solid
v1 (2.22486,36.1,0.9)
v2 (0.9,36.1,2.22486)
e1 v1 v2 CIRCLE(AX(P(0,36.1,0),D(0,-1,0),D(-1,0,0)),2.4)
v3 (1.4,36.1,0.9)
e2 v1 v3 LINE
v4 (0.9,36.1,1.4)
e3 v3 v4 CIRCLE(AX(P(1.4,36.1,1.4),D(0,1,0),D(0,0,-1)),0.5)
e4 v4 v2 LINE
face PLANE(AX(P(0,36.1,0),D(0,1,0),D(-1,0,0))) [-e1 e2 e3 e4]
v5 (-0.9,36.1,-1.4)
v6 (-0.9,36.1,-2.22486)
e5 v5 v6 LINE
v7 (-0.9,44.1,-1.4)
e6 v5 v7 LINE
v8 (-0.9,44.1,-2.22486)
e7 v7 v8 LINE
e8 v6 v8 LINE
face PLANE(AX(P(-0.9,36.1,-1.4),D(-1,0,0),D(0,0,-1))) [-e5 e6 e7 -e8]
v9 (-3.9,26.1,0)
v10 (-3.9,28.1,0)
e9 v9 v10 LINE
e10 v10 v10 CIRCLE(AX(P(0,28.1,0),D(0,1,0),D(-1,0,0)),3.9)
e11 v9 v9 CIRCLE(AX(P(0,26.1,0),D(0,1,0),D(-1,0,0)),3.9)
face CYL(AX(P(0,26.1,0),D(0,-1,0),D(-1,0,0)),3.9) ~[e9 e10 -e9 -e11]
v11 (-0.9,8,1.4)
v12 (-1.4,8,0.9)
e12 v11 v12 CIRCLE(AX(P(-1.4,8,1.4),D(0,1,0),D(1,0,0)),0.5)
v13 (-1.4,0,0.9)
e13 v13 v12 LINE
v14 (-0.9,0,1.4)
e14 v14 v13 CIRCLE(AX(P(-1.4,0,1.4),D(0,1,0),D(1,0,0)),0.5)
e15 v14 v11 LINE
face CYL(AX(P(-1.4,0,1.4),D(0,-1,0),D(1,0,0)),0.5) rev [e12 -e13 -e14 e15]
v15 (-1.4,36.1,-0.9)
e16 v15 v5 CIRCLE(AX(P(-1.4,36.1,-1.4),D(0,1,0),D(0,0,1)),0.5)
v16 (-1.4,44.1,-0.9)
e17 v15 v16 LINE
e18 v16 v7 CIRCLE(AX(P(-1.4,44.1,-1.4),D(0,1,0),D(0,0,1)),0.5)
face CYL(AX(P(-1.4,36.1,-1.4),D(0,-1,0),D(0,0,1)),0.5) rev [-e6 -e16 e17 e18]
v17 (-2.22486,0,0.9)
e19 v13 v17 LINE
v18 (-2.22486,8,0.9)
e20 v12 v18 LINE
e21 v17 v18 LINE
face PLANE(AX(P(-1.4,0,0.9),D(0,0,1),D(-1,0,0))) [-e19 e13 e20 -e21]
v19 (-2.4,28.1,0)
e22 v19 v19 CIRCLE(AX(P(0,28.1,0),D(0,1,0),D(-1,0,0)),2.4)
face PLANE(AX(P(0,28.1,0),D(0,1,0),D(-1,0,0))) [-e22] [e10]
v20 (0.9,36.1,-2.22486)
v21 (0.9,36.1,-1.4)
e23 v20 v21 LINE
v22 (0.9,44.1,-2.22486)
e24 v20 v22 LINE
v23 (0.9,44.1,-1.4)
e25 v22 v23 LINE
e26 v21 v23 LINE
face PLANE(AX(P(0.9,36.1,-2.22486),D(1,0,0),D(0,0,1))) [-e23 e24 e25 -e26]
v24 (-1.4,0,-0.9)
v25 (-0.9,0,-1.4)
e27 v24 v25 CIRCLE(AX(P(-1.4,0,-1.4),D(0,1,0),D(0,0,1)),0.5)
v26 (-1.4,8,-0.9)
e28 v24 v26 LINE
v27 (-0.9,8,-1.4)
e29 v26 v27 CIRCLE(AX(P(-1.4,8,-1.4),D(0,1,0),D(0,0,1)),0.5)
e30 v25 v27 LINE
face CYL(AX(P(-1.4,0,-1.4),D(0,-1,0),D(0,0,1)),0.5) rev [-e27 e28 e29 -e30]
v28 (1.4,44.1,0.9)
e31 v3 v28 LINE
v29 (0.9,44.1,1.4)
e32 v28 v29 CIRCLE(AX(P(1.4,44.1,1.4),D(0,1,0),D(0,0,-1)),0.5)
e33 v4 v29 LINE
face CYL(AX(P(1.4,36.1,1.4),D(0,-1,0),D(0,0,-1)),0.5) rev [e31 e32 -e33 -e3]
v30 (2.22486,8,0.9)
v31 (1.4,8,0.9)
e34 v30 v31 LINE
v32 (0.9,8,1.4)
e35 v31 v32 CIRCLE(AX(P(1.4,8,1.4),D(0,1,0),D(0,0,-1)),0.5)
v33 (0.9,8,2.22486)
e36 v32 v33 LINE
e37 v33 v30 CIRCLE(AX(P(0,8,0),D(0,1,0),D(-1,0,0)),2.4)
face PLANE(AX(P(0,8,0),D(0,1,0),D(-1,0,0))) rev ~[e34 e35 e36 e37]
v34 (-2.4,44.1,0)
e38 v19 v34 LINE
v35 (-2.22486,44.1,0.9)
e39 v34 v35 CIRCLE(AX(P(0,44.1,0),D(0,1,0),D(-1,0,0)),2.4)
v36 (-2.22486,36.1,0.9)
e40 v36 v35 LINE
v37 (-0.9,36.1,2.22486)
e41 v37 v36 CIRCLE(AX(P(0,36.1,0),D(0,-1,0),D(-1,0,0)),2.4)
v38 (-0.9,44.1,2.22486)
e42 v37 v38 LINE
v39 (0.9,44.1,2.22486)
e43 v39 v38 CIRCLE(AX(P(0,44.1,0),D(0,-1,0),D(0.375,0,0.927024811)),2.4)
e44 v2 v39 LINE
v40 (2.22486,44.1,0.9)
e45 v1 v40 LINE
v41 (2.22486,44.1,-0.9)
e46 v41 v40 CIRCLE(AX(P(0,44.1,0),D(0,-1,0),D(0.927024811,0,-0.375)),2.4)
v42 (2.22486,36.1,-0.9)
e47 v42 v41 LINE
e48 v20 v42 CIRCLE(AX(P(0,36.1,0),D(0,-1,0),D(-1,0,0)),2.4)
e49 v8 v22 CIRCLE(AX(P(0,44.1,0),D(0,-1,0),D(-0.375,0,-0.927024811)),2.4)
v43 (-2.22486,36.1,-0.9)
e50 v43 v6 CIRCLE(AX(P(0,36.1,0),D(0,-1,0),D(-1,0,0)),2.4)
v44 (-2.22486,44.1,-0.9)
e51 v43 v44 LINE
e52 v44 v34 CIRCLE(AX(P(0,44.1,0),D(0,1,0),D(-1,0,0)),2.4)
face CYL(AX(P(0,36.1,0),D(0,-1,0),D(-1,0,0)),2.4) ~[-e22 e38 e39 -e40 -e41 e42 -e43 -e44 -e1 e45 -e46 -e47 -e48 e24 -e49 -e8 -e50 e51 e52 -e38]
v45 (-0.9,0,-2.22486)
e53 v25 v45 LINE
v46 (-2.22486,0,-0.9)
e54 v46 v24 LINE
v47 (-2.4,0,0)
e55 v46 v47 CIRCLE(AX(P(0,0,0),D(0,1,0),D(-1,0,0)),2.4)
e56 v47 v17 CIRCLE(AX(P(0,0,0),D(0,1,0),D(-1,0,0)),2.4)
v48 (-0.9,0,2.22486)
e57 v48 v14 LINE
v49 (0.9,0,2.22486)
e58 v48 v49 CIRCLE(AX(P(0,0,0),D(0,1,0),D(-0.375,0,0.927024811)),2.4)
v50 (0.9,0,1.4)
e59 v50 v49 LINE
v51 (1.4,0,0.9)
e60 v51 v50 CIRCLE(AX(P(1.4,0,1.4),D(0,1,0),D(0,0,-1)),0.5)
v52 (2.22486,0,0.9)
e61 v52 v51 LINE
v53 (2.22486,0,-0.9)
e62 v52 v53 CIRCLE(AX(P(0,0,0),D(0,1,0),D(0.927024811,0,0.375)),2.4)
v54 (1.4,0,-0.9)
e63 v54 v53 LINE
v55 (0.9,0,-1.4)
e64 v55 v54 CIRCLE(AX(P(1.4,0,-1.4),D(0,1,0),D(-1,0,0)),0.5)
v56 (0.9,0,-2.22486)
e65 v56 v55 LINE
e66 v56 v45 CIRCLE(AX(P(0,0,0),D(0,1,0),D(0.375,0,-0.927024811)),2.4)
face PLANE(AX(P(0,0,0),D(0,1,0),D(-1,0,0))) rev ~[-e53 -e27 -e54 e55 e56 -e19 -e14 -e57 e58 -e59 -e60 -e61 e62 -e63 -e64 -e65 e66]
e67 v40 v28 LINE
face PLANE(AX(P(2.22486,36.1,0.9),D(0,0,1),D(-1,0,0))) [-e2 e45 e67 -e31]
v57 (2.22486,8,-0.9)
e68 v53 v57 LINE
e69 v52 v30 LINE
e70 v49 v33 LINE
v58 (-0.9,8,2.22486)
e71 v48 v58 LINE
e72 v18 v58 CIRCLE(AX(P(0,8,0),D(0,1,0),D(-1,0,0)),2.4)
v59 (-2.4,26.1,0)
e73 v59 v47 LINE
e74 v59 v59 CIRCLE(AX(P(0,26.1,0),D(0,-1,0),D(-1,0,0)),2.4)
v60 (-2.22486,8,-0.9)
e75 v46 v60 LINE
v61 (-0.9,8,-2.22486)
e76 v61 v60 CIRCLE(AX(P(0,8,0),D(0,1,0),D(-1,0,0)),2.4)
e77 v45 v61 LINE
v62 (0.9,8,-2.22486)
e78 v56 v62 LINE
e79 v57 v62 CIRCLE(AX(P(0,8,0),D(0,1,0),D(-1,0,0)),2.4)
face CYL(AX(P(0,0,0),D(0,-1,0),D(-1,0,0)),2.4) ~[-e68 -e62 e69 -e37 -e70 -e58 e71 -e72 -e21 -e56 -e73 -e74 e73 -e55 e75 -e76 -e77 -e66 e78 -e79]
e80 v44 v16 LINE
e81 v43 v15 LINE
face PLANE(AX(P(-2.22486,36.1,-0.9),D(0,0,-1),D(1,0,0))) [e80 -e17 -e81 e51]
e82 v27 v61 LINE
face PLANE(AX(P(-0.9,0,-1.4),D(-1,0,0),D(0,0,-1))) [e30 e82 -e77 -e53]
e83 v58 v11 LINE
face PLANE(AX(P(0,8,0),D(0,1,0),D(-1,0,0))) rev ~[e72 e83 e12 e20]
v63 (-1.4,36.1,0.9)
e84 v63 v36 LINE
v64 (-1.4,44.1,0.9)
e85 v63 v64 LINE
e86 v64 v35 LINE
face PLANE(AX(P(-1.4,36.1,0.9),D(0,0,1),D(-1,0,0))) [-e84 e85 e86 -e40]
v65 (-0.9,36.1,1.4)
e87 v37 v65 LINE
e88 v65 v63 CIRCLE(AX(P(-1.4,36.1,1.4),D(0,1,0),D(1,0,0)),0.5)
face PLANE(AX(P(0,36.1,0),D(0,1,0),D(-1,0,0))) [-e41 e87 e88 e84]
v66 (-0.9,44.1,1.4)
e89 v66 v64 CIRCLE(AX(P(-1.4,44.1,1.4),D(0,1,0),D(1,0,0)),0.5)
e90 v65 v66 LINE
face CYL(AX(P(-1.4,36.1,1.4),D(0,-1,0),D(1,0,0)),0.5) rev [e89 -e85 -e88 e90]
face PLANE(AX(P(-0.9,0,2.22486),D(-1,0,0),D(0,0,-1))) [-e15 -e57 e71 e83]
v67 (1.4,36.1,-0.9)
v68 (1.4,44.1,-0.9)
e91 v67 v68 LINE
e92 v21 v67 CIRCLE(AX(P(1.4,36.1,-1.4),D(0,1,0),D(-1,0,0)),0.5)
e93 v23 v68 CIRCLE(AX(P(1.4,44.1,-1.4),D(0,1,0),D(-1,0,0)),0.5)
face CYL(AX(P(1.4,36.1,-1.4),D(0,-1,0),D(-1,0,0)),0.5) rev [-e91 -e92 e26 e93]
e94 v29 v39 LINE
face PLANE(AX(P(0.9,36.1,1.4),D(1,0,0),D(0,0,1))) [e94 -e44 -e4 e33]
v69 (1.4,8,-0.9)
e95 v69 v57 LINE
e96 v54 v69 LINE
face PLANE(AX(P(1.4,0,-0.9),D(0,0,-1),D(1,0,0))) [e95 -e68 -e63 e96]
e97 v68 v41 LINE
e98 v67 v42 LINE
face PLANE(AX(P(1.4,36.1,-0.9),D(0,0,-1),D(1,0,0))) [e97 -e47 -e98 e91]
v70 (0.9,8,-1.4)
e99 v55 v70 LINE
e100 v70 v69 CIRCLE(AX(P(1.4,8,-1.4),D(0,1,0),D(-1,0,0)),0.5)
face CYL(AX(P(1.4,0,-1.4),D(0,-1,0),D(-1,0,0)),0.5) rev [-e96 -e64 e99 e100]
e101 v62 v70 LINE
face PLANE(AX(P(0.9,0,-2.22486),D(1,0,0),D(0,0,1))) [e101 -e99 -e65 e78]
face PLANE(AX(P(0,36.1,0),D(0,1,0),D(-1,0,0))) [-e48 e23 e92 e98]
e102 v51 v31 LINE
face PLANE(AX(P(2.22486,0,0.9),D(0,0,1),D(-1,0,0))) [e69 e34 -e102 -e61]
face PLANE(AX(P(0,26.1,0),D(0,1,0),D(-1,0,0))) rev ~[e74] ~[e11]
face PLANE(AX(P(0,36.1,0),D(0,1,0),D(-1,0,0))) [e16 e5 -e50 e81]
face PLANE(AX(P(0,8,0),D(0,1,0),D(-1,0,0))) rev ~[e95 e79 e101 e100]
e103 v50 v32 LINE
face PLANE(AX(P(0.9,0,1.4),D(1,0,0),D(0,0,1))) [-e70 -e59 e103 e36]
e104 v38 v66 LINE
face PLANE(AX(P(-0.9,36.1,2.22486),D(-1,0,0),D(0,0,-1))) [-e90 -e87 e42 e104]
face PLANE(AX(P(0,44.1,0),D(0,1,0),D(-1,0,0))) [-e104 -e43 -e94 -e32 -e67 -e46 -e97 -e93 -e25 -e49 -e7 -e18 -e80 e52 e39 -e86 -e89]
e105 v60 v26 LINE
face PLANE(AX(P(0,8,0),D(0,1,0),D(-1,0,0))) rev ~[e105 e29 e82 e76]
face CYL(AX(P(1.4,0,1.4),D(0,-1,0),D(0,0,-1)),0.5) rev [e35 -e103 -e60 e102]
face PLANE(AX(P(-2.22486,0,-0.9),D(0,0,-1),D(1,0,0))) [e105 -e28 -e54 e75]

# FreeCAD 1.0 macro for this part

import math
import FreeCAD as App
import Part
import Sketcher

doc = App.newDocument("Part")
body = doc.addObject("PartDesign::Body", "Body")

# Sketch on XZ plane
sketch1 = doc.addObject("Sketcher::SketchObject", "Sketch")
body.addObject(sketch1)
sketch1.AttachmentSupport = (doc.XZ_Plane, [""])
sketch1.MapMode = "FlatFace"
sketch1.addGeometry([
    Part.ArcOfCircle(Part.Circle(App.Vector(0, 0, 0), App.Vector(0, 0, 1), 2.4), math.radians(68), math.radians(112)),  # 0
    Part.LineSegment(App.Vector(0.9, 2.22, 0), App.Vector(0.9, 1.4, 0)),  # 1
    Part.ArcOfCircle(Part.Circle(App.Vector(1.4, 1.4, 0), App.Vector(0, 0, 1), 0.5), math.radians(180), math.radians(270)),  # 2
    Part.LineSegment(App.Vector(1.4, 0.9, 0), App.Vector(2.22, 0.9, 0)),  # 3
    Part.ArcOfCircle(Part.Circle(App.Vector(0, 0, 0), App.Vector(0, 0, 1), 2.4), math.radians(-22), math.radians(22)),  # 4
    Part.LineSegment(App.Vector(2.22, -0.9, 0), App.Vector(1.4, -0.9, 0)),  # 5
    Part.ArcOfCircle(Part.Circle(App.Vector(1.4, -1.4, 0), App.Vector(0, 0, 1), 0.5), math.radians(90), math.radians(180)),  # 6
    Part.LineSegment(App.Vector(0.9, -1.4, 0), App.Vector(0.9, -2.22, 0)),  # 7
    Part.ArcOfCircle(Part.Circle(App.Vector(0, 0, 0), App.Vector(0, 0, 1), 2.4), math.radians(-112), math.radians(-68)),  # 8
    Part.LineSegment(App.Vector(-0.9, -2.22, 0), App.Vector(-0.9, -1.4, 0)),  # 9
    Part.ArcOfCircle(Part.Circle(App.Vector(-1.4, -1.4, 0), App.Vector(0, 0, 1), 0.5), math.radians(0), math.radians(90)),  # 10
    Part.LineSegment(App.Vector(-1.4, -0.9, 0), App.Vector(-2.22, -0.9, 0)),  # 11
    Part.ArcOfCircle(Part.Circle(App.Vector(0, 0, 0), App.Vector(0, 0, 1), 2.4), math.radians(158), math.radians(202)),  # 12
    Part.LineSegment(App.Vector(-2.22, 0.9, 0), App.Vector(-1.4, 0.9, 0)),  # 13
    Part.ArcOfCircle(Part.Circle(App.Vector(-1.4, 1.4, 0), App.Vector(0, 0, 1), 0.5), math.radians(-90), math.radians(0)),  # 14
    Part.LineSegment(App.Vector(-0.9, 1.4, 0), App.Vector(-0.9, 2.22, 0)),  # 15
], False)
sketch1.addConstraint([
    Sketcher.Constraint("Coincident", 0, 1, 1, 1),
    Sketcher.Constraint("Tangent", 1, 2, 2, 1),
    Sketcher.Constraint("Tangent", 2, 2, 3, 1),
    Sketcher.Constraint("Coincident", 3, 2, 4, 2),
    Sketcher.Constraint("Coincident", 4, 1, 5, 1),
    Sketcher.Constraint("Tangent", 5, 2, 6, 1),
    Sketcher.Constraint("Tangent", 6, 2, 7, 1),
    Sketcher.Constraint("Coincident", 7, 2, 8, 2),
    Sketcher.Constraint("Coincident", 8, 1, 9, 1),
    Sketcher.Constraint("Tangent", 9, 2, 10, 1),
    Sketcher.Constraint("Tangent", 10, 2, 11, 1),
    Sketcher.Constraint("Coincident", 11, 2, 12, 2),
    Sketcher.Constraint("Coincident", 12, 1, 13, 1),
    Sketcher.Constraint("Tangent", 13, 2, 14, 1),
    Sketcher.Constraint("Tangent", 14, 2, 15, 1),
    Sketcher.Constraint("Coincident", 15, 2, 0, 2),
    Sketcher.Constraint("Vertical", 1),
    Sketcher.Constraint("Horizontal", 3),
    Sketcher.Constraint("Horizontal", 5),
    Sketcher.Constraint("Vertical", 7),
    Sketcher.Constraint("Vertical", 9),
    Sketcher.Constraint("Horizontal", 11),
    Sketcher.Constraint("Horizontal", 13),
    Sketcher.Constraint("Vertical", 15),
    Sketcher.Constraint("Coincident", 0, 3, -1, 1),
    Sketcher.Constraint("Coincident", 4, 3, -1, 1),
    Sketcher.Constraint("Coincident", 8, 3, -1, 1),
    Sketcher.Constraint("Coincident", 12, 3, -1, 1),
    Sketcher.Constraint("Equal", 0, 4),
    Sketcher.Constraint("Equal", 2, 6),
    Sketcher.Constraint("Equal", 4, 8),
    Sketcher.Constraint("Equal", 6, 10),
    Sketcher.Constraint("Equal", 8, 12),
    Sketcher.Constraint("Equal", 10, 14),
    Sketcher.Constraint("Symmetric", 2, 3, 10, 3, -1, 1),
    Sketcher.Constraint("Symmetric", 6, 3, 14, 3, -1, 1),
    Sketcher.Constraint("Symmetric", 6, 3, 10, 3, -2),
    Sketcher.Constraint("Equal", 13, 1),
    Sketcher.Constraint("Radius", 0, 2.4),
    Sketcher.Constraint("Radius", 2, 0.5),
    Sketcher.Constraint("DistanceX", -1, 1, 0, 1, 0.9),
])
pad1 = doc.addObject("PartDesign::Pad", "Pad")
body.addObject(pad1)
pad1.Profile = sketch1
pad1.Length = 8
pad1.Reversed = True

# Sketch on XZ plane
sketch2 = doc.addObject("Sketcher::SketchObject", "Sketch001")
body.addObject(sketch2)
sketch2.AttachmentSupport = (doc.XZ_Plane, [""])
sketch2.MapMode = "FlatFace"
sketch2.AttachmentOffset = App.Placement(App.Vector(0, 0, -8), App.Rotation())
sketch2.addGeometry(Part.Circle(App.Vector(0, 0, 0), App.Vector(0, 0, 1), 2.4), False)
sketch2.addConstraint([
    Sketcher.Constraint("Coincident", 0, 3, -1, 1),
    Sketcher.Constraint("Diameter", 0, 4.8),
])
pad2 = doc.addObject("PartDesign::Pad", "Pad001")
body.addObject(pad2)
pad2.Profile = sketch2
pad2.Length = 18.1
pad2.Reversed = True

# Sketch on XZ plane
sketch3 = doc.addObject("Sketcher::SketchObject", "Sketch002")
body.addObject(sketch3)
sketch3.AttachmentSupport = (doc.XZ_Plane, [""])
sketch3.MapMode = "FlatFace"
sketch3.AttachmentOffset = App.Placement(App.Vector(0, 0, -26.1), App.Rotation())
sketch3.addGeometry(Part.Circle(App.Vector(0, 0, 0), App.Vector(0, 0, 1), 3.9), False)
sketch3.addConstraint([
    Sketcher.Constraint("Coincident", 0, 3, -1, 1),
    Sketcher.Constraint("Diameter", 0, 7.8),
])
pad3 = doc.addObject("PartDesign::Pad", "Pad002")
body.addObject(pad3)
pad3.Profile = sketch3
pad3.Length = 2
pad3.Reversed = True

# Sketch on XZ plane
sketch4 = doc.addObject("Sketcher::SketchObject", "Sketch003")
body.addObject(sketch4)
sketch4.AttachmentSupport = (doc.XZ_Plane, [""])
sketch4.MapMode = "FlatFace"
sketch4.AttachmentOffset = App.Placement(App.Vector(0, 0, -28.1), App.Rotation())
sketch4.addGeometry(Part.Circle(App.Vector(0, 0, 0), App.Vector(0, 0, 1), 2.4), False)
sketch4.addConstraint([
    Sketcher.Constraint("Coincident", 0, 3, -1, 1),
    Sketcher.Constraint("Diameter", 0, 4.8),
])
pad4 = doc.addObject("PartDesign::Pad", "Pad003")
body.addObject(pad4)
pad4.Profile = sketch4
pad4.Length = 8
pad4.Reversed = True

# Sketch on XZ plane
sketch5 = doc.addObject("Sketcher::SketchObject", "Sketch004")
body.addObject(sketch5)
sketch5.AttachmentSupport = (doc.XZ_Plane, [""])
sketch5.MapMode = "FlatFace"
sketch5.AttachmentOffset = App.Placement(App.Vector(0, 0, -36.1), App.Rotation())
sketch5.addGeometry([
    Part.ArcOfCircle(Part.Circle(App.Vector(0, 0, 0), App.Vector(0, 0, 1), 2.4), math.radians(68), math.radians(112)),  # 0
    Part.LineSegment(App.Vector(0.9, 2.22, 0), App.Vector(0.9, 1.4, 0)),  # 1
    Part.ArcOfCircle(Part.Circle(App.Vector(1.4, 1.4, 0), App.Vector(0, 0, 1), 0.5), math.radians(180), math.radians(270)),  # 2
    Part.LineSegment(App.Vector(1.4, 0.9, 0), App.Vector(2.22, 0.9, 0)),  # 3
    Part.ArcOfCircle(Part.Circle(App.Vector(0, 0, 0), App.Vector(0, 0, 1), 2.4), math.radians(-22), math.radians(22)),  # 4
    Part.LineSegment(App.Vector(2.22, -0.9, 0), App.Vector(1.4, -0.9, 0)),  # 5
    Part.ArcOfCircle(Part.Circle(App.Vector(1.4, -1.4, 0), App.Vector(0, 0, 1), 0.5), math.radians(90), math.radians(180)),  # 6
    Part.LineSegment(App.Vector(0.9, -1.4, 0), App.Vector(0.9, -2.22, 0)),  # 7
    Part.ArcOfCircle(Part.Circle(App.Vector(0, 0, 0), App.Vector(0, 0, 1), 2.4), math.radians(-112), math.radians(-68)),  # 8
    Part.LineSegment(App.Vector(-0.9, -2.22, 0), App.Vector(-0.9, -1.4, 0)),  # 9
    Part.ArcOfCircle(Part.Circle(App.Vector(-1.4, -1.4, 0), App.Vector(0, 0, 1), 0.5), math.radians(0), math.radians(90)),  # 10
    Part.LineSegment(App.Vector(-1.4, -0.9, 0), App.Vector(-2.22, -0.9, 0)),  # 11
    Part.ArcOfCircle(Part.Circle(App.Vector(0, 0, 0), App.Vector(0, 0, 1), 2.4), math.radians(158), math.radians(202)),  # 12
    Part.LineSegment(App.Vector(-2.22, 0.9, 0), App.Vector(-1.4, 0.9, 0)),  # 13
    Part.ArcOfCircle(Part.Circle(App.Vector(-1.4, 1.4, 0), App.Vector(0, 0, 1), 0.5), math.radians(-90), math.radians(0)),  # 14
    Part.LineSegment(App.Vector(-0.9, 1.4, 0), App.Vector(-0.9, 2.22, 0)),  # 15
], False)
sketch5.addConstraint([
    Sketcher.Constraint("Coincident", 0, 1, 1, 1),
    Sketcher.Constraint("Tangent", 1, 2, 2, 1),
    Sketcher.Constraint("Tangent", 2, 2, 3, 1),
    Sketcher.Constraint("Coincident", 3, 2, 4, 2),
    Sketcher.Constraint("Coincident", 4, 1, 5, 1),
    Sketcher.Constraint("Tangent", 5, 2, 6, 1),
    Sketcher.Constraint("Tangent", 6, 2, 7, 1),
    Sketcher.Constraint("Coincident", 7, 2, 8, 2),
    Sketcher.Constraint("Coincident", 8, 1, 9, 1),
    Sketcher.Constraint("Tangent", 9, 2, 10, 1),
    Sketcher.Constraint("Tangent", 10, 2, 11, 1),
    Sketcher.Constraint("Coincident", 11, 2, 12, 2),
    Sketcher.Constraint("Coincident", 12, 1, 13, 1),
    Sketcher.Constraint("Tangent", 13, 2, 14, 1),
    Sketcher.Constraint("Tangent", 14, 2, 15, 1),
    Sketcher.Constraint("Coincident", 15, 2, 0, 2),
    Sketcher.Constraint("Vertical", 1),
    Sketcher.Constraint("Horizontal", 3),
    Sketcher.Constraint("Horizontal", 5),
    Sketcher.Constraint("Vertical", 7),
    Sketcher.Constraint("Vertical", 9),
    Sketcher.Constraint("Horizontal", 11),
    Sketcher.Constraint("Horizontal", 13),
    Sketcher.Constraint("Vertical", 15),
    Sketcher.Constraint("Coincident", 0, 3, -1, 1),
    Sketcher.Constraint("Coincident", 4, 3, -1, 1),
    Sketcher.Constraint("Coincident", 8, 3, -1, 1),
    Sketcher.Constraint("Coincident", 12, 3, -1, 1),
    Sketcher.Constraint("Equal", 0, 4),
    Sketcher.Constraint("Equal", 2, 6),
    Sketcher.Constraint("Equal", 4, 8),
    Sketcher.Constraint("Equal", 6, 10),
    Sketcher.Constraint("Equal", 8, 12),
    Sketcher.Constraint("Equal", 10, 14),
    Sketcher.Constraint("Symmetric", 2, 3, 10, 3, -1, 1),
    Sketcher.Constraint("Symmetric", 6, 3, 14, 3, -1, 1),
    Sketcher.Constraint("Symmetric", 6, 3, 10, 3, -2),
    Sketcher.Constraint("Equal", 13, 1),
    Sketcher.Constraint("Radius", 0, 2.4),
    Sketcher.Constraint("Radius", 2, 0.5),
    Sketcher.Constraint("DistanceX", -1, 1, 0, 1, 0.9),
])
pad5 = doc.addObject("PartDesign::Pad", "Pad004")
body.addObject(pad5)
pad5.Profile = sketch5
pad5.Length = 8
pad5.Reversed = True

doc.recompute()
